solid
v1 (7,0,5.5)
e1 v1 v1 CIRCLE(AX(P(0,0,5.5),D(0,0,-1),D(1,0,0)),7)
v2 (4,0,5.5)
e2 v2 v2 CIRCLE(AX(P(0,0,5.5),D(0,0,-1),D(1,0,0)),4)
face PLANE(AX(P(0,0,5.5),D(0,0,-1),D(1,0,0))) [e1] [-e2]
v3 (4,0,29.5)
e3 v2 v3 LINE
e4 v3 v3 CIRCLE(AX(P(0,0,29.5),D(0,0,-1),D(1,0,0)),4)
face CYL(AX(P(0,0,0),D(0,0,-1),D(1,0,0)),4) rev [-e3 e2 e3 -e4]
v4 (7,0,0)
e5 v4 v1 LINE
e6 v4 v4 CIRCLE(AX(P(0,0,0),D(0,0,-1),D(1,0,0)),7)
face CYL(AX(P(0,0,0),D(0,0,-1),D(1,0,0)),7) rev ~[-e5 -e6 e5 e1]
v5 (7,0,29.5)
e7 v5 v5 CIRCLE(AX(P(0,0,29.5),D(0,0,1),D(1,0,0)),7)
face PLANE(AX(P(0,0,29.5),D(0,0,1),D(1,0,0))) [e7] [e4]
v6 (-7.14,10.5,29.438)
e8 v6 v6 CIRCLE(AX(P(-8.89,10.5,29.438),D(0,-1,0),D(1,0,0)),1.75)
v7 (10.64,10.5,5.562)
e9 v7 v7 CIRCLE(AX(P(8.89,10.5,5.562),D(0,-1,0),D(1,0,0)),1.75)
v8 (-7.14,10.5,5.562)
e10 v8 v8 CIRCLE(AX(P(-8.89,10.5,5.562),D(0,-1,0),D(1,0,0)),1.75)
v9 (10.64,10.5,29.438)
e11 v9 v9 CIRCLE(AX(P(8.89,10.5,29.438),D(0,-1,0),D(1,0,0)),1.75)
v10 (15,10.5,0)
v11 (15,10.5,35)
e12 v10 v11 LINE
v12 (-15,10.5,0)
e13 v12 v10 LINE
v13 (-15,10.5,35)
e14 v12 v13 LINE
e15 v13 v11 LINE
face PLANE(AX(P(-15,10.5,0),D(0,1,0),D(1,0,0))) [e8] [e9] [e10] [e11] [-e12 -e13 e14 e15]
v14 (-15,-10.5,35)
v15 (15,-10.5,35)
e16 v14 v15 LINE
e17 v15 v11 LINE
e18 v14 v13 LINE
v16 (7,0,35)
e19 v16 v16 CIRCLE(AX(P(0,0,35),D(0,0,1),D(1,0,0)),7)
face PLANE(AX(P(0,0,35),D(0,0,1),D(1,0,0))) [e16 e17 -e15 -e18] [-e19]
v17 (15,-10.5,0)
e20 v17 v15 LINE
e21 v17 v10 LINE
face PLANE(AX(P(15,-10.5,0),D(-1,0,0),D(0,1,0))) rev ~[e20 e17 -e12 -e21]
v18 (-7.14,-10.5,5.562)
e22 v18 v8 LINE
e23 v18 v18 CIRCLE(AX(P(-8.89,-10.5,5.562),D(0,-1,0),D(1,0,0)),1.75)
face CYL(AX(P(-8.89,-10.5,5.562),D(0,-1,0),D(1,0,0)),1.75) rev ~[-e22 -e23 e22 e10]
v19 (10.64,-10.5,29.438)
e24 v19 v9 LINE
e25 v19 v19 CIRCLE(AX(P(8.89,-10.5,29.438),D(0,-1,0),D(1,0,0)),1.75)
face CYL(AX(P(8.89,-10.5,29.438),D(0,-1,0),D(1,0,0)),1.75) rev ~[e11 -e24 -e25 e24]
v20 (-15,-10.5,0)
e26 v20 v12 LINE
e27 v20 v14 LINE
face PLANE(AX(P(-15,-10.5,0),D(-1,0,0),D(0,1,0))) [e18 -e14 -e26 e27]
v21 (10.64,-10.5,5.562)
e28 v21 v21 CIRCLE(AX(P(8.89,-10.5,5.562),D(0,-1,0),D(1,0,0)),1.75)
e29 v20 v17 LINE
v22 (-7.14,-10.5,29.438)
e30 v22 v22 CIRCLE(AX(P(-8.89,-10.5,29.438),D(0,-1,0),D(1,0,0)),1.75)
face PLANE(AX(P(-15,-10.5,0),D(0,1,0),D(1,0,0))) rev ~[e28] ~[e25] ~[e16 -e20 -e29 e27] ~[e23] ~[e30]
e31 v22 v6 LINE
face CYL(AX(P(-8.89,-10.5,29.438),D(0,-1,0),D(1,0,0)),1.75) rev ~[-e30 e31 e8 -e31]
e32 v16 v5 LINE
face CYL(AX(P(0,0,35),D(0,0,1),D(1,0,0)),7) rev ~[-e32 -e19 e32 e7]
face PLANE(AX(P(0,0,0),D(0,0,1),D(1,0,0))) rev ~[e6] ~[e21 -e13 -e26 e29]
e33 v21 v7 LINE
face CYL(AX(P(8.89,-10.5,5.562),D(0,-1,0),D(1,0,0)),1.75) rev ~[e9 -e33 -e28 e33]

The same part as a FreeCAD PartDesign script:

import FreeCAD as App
import Part
import Sketcher

V = App.Vector
Q = App.Units.Quantity

doc = App.newDocument("Part")
body = doc.addObject("PartDesign::Body", "Body")

sketch1 = body.newObject("Sketcher::SketchObject", "Sketch")
sketch1.AttachmentSupport = (doc.getObject("XY_Plane"), [""])
sketch1.MapMode = "FlatFace"
sketch1.addGeometry([
    Part.LineSegment(V(-15, 10.5, 0), V(-15, -10.5, 0)),
    Part.LineSegment(V(-15, -10.5, 0), V(15, -10.5, 0)),
    Part.LineSegment(V(15, -10.5, 0), V(15, 10.5, 0)),
    Part.LineSegment(V(15, 10.5, 0), V(-15, 10.5, 0)),
    Part.Circle(V(0, 0, 0), V(0, 0, 1), 4),
], False)
sketch1.addConstraint([
    Sketcher.Constraint("Coincident", 0, 2, 1, 1),
    Sketcher.Constraint("Coincident", 1, 2, 2, 1),
    Sketcher.Constraint("Coincident", 2, 2, 3, 1),
    Sketcher.Constraint("Coincident", 3, 2, 0, 1),
    Sketcher.Constraint("Vertical", 0),
    Sketcher.Constraint("Horizontal", 1),
    Sketcher.Constraint("Vertical", 2),
    Sketcher.Constraint("Horizontal", 3),
    Sketcher.Constraint("Coincident", 4, 3, -1, 1),
    Sketcher.Constraint("Symmetric", 0, 2, 2, 2, -1, 1),
    Sketcher.Constraint("Diameter", 4, Q("8 mm")),
    Sketcher.Constraint("DistanceX", 1, 1, 1, 2, Q("30 mm")),
    Sketcher.Constraint("DistanceY", 0, 2, 0, 1, Q("21 mm")),
])
pad1 = body.newObject("PartDesign::Pad", "Pad")
pad1.Profile = sketch1
pad1.Length = 35

sketch2 = body.newObject("Sketcher::SketchObject", "Sketch001")
sketch2.AttachmentSupport = (doc.getObject("XY_Plane"), [""])
sketch2.MapMode = "FlatFace"
sketch2.AttachmentOffset = App.Placement(V(0, 0, 35), App.Rotation())
sketch2.addGeometry(Part.Circle(V(0, 0, 0), V(0, 0, 1), 7), False)
sketch2.addConstraint([
    Sketcher.Constraint("Coincident", 0, 3, -1, 1),
    Sketcher.Constraint("Diameter", 0, Q("14 mm")),
])
pocket1 = body.newObject("PartDesign::Pocket", "Pocket")
pocket1.Profile = sketch2
pocket1.Length = 5.5

sketch3 = body.newObject("Sketcher::SketchObject", "Sketch002")
sketch3.AttachmentSupport = (doc.getObject("XY_Plane"), [""])
sketch3.MapMode = "FlatFace"
sketch3.addGeometry(Part.Circle(V(0, 0, 0), V(0, 0, 1), 7), False)
sketch3.addConstraint([
    Sketcher.Constraint("Coincident", 0, 3, -1, 1),
    Sketcher.Constraint("Diameter", 0, Q("14 mm")),
])
pocket2 = body.newObject("PartDesign::Pocket", "Pocket001")
pocket2.Profile = sketch3
pocket2.Length = 5.5
pocket2.Reversed = True

sketch4 = body.newObject("Sketcher::SketchObject", "Sketch003")
sketch4.AttachmentSupport = (doc.getObject("XZ_Plane"), [""])
sketch4.MapMode = "FlatFace"
sketch4.AttachmentOffset = App.Placement(V(0, 0, 10.5), App.Rotation())
sketch4.addGeometry([
    Part.Circle(V(8.9, 5.6, 0), V(0, 0, 1), 1.8),
    Part.Circle(V(-8.9, 5.6, 0), V(0, 0, 1), 1.8),
    Part.Circle(V(8.9, 29.4, 0), V(0, 0, 1), 1.8),
    Part.Circle(V(-8.9, 29.4, 0), V(0, 0, 1), 1.8),
], False)
sketch4.addConstraint([
    Sketcher.Constraint("Equal", 0, 1),
    Sketcher.Constraint("Equal", 1, 2),
    Sketcher.Constraint("Equal", 2, 3),
    Sketcher.Constraint("Symmetric", 0, 3, 1, 3, -2),
    Sketcher.Constraint("Symmetric", 2, 3, 3, 3, -2),
    Sketcher.Constraint("Vertical", 0, 3, 2, 3),
    Sketcher.Constraint("Diameter", 0, Q("3.5 mm")),
    Sketcher.Constraint("DistanceX", -1, 1, 0, 3, Q("8.89 mm")),
    Sketcher.Constraint("DistanceY", -1, 1, 0, 3, Q("5.562 mm")),
    Sketcher.Constraint("DistanceY", -1, 1, 2, 3, Q("29.438 mm")),
])
pocket3 = body.newObject("PartDesign::Pocket", "Pocket002")
pocket3.Profile = sketch4
pocket3.Type = "ThroughAll"

doc.recompute()
